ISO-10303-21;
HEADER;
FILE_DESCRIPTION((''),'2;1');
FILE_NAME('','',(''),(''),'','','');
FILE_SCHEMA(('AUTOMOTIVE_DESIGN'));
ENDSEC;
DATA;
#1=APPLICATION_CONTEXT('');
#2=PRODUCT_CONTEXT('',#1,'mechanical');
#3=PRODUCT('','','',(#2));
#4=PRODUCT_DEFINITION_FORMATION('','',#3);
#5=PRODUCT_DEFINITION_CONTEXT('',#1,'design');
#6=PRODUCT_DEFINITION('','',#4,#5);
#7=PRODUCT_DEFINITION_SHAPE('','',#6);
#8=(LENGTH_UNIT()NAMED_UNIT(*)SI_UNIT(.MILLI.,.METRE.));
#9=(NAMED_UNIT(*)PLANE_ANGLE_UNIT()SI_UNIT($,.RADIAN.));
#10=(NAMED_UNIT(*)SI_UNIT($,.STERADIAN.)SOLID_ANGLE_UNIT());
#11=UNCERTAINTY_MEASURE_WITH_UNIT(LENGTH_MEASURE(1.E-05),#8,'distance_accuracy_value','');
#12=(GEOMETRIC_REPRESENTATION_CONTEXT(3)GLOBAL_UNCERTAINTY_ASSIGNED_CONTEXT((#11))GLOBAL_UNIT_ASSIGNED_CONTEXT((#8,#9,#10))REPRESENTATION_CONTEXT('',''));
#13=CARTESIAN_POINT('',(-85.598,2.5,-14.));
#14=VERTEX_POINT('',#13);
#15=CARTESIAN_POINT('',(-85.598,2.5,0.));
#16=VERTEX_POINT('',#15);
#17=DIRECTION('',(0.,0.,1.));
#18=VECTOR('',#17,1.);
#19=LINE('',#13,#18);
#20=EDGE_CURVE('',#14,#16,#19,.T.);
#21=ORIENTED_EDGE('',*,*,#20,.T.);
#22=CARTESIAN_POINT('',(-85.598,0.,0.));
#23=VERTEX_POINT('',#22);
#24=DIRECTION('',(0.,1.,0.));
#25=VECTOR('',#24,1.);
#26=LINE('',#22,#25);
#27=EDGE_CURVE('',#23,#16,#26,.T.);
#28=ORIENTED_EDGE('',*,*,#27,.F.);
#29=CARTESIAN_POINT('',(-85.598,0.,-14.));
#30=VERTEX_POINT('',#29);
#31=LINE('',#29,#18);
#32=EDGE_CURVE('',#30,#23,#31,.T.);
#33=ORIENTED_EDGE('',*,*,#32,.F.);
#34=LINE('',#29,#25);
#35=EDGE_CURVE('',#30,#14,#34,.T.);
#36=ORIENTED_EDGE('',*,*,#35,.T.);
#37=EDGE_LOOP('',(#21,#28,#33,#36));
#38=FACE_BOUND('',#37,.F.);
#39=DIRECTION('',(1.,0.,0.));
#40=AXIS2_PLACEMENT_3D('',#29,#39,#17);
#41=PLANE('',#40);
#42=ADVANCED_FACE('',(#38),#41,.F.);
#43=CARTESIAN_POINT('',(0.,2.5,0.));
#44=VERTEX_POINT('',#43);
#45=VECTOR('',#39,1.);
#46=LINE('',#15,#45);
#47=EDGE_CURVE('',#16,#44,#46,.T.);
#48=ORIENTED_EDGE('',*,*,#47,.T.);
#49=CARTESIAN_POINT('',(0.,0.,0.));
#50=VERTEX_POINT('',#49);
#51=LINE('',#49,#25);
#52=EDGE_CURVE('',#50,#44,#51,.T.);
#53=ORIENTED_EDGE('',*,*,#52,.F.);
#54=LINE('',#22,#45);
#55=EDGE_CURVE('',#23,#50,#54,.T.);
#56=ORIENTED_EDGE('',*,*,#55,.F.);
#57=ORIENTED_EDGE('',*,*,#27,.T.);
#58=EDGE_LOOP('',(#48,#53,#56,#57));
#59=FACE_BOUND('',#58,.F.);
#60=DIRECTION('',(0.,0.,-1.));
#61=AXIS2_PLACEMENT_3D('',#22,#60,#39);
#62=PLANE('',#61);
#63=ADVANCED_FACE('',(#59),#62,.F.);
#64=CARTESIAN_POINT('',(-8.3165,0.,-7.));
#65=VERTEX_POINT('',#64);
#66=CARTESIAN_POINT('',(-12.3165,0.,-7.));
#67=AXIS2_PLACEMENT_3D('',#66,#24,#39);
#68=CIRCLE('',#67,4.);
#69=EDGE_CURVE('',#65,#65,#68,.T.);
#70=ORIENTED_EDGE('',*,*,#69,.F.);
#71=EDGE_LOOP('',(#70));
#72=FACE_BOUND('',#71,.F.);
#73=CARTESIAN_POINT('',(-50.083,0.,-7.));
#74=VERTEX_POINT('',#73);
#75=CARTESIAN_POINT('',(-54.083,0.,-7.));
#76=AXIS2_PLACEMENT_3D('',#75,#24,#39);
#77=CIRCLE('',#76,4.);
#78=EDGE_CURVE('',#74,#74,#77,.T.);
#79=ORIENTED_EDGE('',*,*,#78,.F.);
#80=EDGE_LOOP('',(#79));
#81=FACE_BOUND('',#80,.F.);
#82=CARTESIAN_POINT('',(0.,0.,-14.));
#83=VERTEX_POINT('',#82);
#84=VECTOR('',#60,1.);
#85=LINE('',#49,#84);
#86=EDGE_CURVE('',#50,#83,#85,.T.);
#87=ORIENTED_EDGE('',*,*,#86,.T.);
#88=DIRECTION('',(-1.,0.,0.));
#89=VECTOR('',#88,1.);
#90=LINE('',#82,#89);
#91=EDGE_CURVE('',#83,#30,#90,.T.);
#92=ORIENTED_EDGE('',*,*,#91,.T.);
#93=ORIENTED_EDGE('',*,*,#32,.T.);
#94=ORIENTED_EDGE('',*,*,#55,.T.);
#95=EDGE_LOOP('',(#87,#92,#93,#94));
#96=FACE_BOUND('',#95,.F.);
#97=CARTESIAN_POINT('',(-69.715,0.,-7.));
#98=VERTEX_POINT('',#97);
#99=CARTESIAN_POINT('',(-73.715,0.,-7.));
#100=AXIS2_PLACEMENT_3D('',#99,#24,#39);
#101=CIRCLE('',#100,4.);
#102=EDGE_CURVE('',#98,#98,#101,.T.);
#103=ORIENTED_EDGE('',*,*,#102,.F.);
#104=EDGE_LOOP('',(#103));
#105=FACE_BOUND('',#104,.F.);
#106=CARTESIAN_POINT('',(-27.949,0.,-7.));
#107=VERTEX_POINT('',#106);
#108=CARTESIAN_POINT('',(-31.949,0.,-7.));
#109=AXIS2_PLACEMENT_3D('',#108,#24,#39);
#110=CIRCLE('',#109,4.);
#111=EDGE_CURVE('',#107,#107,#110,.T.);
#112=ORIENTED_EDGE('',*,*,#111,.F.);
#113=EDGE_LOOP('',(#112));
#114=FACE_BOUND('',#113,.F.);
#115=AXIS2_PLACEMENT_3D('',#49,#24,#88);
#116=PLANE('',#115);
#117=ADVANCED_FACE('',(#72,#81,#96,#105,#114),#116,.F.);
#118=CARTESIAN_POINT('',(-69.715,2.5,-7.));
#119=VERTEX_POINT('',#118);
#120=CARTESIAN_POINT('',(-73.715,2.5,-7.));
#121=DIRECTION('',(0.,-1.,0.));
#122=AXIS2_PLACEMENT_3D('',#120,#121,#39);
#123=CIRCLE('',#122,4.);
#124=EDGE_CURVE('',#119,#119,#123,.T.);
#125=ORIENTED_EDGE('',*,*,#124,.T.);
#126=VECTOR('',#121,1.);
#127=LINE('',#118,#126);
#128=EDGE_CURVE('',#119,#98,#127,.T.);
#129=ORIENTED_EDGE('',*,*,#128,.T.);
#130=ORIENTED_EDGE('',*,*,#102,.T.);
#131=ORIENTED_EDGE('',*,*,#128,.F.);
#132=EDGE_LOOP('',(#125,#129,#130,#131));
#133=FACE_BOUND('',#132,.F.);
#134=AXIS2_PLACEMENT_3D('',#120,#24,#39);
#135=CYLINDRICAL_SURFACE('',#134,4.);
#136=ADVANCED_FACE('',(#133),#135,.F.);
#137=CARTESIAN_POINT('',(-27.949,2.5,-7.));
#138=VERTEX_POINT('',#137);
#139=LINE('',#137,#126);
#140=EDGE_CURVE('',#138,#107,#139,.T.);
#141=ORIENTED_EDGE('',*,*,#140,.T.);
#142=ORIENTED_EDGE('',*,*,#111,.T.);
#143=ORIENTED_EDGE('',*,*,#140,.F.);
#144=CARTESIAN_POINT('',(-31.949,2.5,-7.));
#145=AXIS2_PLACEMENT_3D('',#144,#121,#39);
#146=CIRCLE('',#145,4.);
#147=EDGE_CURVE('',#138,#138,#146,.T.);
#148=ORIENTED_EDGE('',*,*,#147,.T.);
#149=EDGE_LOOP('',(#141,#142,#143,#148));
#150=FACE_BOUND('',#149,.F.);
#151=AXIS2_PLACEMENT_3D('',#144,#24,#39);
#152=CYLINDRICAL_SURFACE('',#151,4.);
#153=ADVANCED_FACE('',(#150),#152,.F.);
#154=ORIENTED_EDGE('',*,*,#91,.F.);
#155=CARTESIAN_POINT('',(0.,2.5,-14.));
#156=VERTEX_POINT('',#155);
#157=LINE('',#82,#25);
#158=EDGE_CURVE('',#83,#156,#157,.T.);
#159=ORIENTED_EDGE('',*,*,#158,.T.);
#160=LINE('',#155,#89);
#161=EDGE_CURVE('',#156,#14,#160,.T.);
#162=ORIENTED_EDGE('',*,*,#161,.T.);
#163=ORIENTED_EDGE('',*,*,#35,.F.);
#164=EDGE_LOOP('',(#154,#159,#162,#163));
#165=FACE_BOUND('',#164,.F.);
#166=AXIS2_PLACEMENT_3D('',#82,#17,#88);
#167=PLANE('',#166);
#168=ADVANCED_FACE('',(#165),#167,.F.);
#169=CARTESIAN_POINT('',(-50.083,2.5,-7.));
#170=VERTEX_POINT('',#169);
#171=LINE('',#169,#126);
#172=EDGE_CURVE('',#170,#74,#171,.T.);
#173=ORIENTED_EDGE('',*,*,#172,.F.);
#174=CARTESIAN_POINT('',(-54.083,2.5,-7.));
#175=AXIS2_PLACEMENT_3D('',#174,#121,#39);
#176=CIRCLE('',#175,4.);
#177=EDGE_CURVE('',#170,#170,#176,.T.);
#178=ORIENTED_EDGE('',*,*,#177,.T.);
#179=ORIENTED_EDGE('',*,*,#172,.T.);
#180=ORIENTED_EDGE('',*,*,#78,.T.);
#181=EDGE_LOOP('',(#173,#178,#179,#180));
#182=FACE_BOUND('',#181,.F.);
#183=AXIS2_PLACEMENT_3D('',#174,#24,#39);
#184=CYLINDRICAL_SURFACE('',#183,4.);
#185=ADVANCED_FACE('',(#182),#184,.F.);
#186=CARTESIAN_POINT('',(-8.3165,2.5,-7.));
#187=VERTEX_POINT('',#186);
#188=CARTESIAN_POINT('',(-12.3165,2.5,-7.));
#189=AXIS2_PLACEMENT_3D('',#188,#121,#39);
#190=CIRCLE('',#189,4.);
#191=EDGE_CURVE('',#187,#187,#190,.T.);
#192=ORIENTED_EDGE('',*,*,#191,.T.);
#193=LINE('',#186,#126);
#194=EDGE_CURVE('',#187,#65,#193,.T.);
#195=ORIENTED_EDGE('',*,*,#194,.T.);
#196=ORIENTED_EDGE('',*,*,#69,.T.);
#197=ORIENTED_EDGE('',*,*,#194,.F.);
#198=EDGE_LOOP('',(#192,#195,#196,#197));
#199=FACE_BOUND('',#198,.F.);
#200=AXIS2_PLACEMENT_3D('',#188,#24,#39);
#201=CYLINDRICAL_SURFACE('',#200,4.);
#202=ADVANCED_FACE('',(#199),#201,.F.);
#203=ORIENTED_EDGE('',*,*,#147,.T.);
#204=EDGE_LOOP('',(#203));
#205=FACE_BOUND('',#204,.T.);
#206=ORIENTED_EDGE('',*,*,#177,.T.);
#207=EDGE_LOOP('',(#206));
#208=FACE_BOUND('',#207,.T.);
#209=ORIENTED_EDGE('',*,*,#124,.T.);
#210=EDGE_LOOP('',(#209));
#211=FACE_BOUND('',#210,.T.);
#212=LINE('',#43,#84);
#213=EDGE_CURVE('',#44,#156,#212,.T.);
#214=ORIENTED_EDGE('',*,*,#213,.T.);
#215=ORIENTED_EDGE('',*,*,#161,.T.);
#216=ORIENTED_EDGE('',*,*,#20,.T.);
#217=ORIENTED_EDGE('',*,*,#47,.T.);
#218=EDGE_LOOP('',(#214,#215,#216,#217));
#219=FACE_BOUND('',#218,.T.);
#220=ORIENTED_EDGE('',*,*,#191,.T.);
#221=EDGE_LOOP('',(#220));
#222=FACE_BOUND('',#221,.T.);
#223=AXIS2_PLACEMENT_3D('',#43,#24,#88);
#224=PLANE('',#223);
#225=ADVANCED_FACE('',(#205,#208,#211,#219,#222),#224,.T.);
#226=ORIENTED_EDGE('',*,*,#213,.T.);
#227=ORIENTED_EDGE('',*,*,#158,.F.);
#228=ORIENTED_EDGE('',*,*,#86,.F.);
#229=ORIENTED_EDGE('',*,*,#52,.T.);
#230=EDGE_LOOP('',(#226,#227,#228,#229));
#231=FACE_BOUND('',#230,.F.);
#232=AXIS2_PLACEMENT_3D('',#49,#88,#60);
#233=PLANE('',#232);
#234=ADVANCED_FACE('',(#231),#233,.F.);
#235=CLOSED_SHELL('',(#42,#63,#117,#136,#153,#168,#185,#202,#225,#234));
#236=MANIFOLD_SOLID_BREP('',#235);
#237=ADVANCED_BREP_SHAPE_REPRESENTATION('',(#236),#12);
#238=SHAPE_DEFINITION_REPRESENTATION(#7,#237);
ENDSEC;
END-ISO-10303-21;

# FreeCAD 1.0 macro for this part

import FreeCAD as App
import Part
import Sketcher


def add_polygon(sketch, points):
    """Adds a closed chain of lines whose ends are joined by coincident constraints."""
    first, n = sketch.GeometryCount, len(points)
    for a, b in zip(points, points[1:] + points[:1]):
        sketch.addGeometry(Part.LineSegment(App.Vector(*a, 0), App.Vector(*b, 0)), False)
    for i in range(n):
        sketch.addConstraint(Sketcher.Constraint("Coincident", first + i, 2, first + (i + 1) % n, 1))

doc = App.newDocument("Part")
params = doc.addObject("Spreadsheet::Sheet", "Params")
for row, (alias, value) in enumerate([
    ("sketch1_height", "14 mm"),
    ("pad1_length", "2.5 mm"),
    ("sketch2_diameter", "8 mm"),
    ("pocket1_length", "2.5 mm"),
], start=1):
    params.set(f"A{row}", alias)
    params.set(f"B{row}", "=" + value)
    params.setAlias(f"B{row}", alias)

body = doc.addObject("PartDesign::Body", "Body")

# Sketch on XZ plane
sketch1 = body.newObject("Sketcher::SketchObject", "Sketch")
sketch1.AttachmentSupport = (doc.getObject("XZ_Plane"), [""])
sketch1.MapMode = "FlatFace"
add_polygon(sketch1, [(-86, 0), (0, 0), (0, -14), (-86, -14)])  # lines 0-3
sketch1.addConstraint([
    Sketcher.Constraint("Horizontal", 0),
    Sketcher.Constraint("Vertical", 1),
    Sketcher.Constraint("Horizontal", 2),
    Sketcher.Constraint("Vertical", 3),
    Sketcher.Constraint("Coincident", 0, 2, -1, 1),
    Sketcher.Constraint("DistanceY", 1, 2, 1, 1, 14.0),
    Sketcher.Constraint("DistanceX", 0, 1, 0, 2, 85.598),
])
sketch1.setExpression("Constraints[9]", "Params.sketch1_height")
pad1 = body.newObject("PartDesign::Pad", "Pad")
pad1.Profile = sketch1
pad1.setExpression("Length", "Params.pad1_length")
pad1.Reversed = True

# Sketch on XZ plane
sketch2 = body.newObject("Sketcher::SketchObject", "Sketch001")
sketch2.AttachmentSupport = (doc.getObject("XZ_Plane"), [""])
sketch2.MapMode = "FlatFace"
sketch2.AttachmentOffset = App.Placement(App.Vector(0, 0, -2.5), App.Rotation())
sketch2.addGeometry([
    Part.Circle(App.Vector(-12.3, -7, 0), App.Vector(0, 0, 1), 4),
    Part.Circle(App.Vector(-31.9, -7, 0), App.Vector(0, 0, 1), 4),
    Part.Circle(App.Vector(-54.1, -7, 0), App.Vector(0, 0, 1), 4),
    Part.Circle(App.Vector(-73.7, -7, 0), App.Vector(0, 0, 1), 4),
], False)
sketch2.addConstraint([
    Sketcher.Constraint("Equal", 0, 1),
    Sketcher.Constraint("Equal", 1, 2),
    Sketcher.Constraint("Equal", 2, 3),
    Sketcher.Constraint("Horizontal", 0, 3, 1, 3),
    Sketcher.Constraint("Horizontal", 1, 3, 2, 3),
    Sketcher.Constraint("Horizontal", 2, 3, 3, 3),
    Sketcher.Constraint("Diameter", 0, 8.0),
    Sketcher.Constraint("DistanceY", 0, 3, -1, 1, 7.0),
    Sketcher.Constraint("DistanceX", 1, 3, -1, 1, 31.949),
    Sketcher.Constraint("DistanceX", 2, 3, -1, 1, 54.083),
    Sketcher.Constraint("DistanceX", 3, 3, -1, 1, 73.715),
    Sketcher.Constraint("DistanceX", 0, 3, -1, 1, 12.3165),
])
sketch2.setExpression("Constraints[6]", "Params.sketch2_diameter")
pocket1 = body.newObject("PartDesign::Pocket", "Pocket")
pocket1.Profile = sketch2
pocket1.setExpression("Length", "Params.pocket1_length")
pocket1.Reversed = True

doc.recompute()
